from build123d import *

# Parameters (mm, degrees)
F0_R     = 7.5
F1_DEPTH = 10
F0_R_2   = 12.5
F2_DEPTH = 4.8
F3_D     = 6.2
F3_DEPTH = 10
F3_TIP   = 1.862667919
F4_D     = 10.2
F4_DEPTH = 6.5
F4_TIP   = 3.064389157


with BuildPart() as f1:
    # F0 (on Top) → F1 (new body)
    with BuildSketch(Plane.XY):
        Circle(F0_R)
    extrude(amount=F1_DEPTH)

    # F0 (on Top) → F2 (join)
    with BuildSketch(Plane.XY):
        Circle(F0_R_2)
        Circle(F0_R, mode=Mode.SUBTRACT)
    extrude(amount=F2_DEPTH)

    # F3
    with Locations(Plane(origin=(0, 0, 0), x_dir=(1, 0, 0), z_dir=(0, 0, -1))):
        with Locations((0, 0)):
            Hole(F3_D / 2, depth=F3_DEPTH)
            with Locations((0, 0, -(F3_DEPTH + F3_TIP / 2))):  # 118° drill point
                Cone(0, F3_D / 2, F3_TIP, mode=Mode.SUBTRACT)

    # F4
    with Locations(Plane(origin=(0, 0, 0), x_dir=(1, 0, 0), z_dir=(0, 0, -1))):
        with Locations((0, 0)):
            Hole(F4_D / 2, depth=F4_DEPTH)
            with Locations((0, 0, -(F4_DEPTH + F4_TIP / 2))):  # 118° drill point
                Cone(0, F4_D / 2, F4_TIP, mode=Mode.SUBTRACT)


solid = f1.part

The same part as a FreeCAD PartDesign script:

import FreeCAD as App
import Part
import Sketcher
from FreeCAD import Vector

doc = App.newDocument("Part")
body = doc.addObject("PartDesign::Body", "Body")

# Sketch on XY plane
sketch1 = body.newObject("Sketcher::SketchObject", "Sketch")
sketch1.AttachmentSupport = (doc.getObject("XY_Plane"), [""])
sketch1.MapMode = "FlatFace"
sketch1.addGeometry(Part.Circle(Vector(0, 0, 0), Vector(0, 0, 1), 8), False)
sketch1.addConstraint([
    Sketcher.Constraint("Coincident", 0, 3, -1, 1),
    Sketcher.Constraint("Diameter", 0, 15.0),
])
pad1 = body.newObject("PartDesign::Pad", "Pad")
pad1.Profile = sketch1
pad1.Length = 10

# Sketch on XY plane
sketch2 = body.newObject("Sketcher::SketchObject", "Sketch001")
sketch2.AttachmentSupport = (doc.getObject("XY_Plane"), [""])
sketch2.MapMode = "FlatFace"
sketch2.addGeometry([
    Part.Circle(Vector(0, 0, 0), Vector(0, 0, 1), 12),
    Part.Circle(Vector(0, 0, 0), Vector(0, 0, 1), 8),
], False)
sketch2.addConstraint([
    Sketcher.Constraint("Coincident", 0, 3, -1, 1),
    Sketcher.Constraint("Coincident", 1, 3, -1, 1),
    Sketcher.Constraint("Diameter", 0, 25.0),
    Sketcher.Constraint("Diameter", 1, 15.0),
])
pad2 = body.newObject("PartDesign::Pad", "Pad001")
pad2.Profile = sketch2
pad2.Length = 4.8

# Sketch on XY plane
sketch3 = body.newObject("Sketcher::SketchObject", "Sketch002")
sketch3.AttachmentSupport = (doc.getObject("XY_Plane"), [""])
sketch3.MapMode = "FlatFace"
sketch3.addGeometry(Part.Circle(Vector(0, 0, 0), Vector(0, 0, 1), 3.1), False)
sketch3.addConstraint([
    Sketcher.Constraint("Coincident", 0, 3, -1, 1),
    Sketcher.Constraint("Diameter", 0, 6.2),
])
doc.recompute()
hole = body.newObject("PartDesign::Hole", "Hole")
hole.Profile = sketch3
hole.ThreadType = "None"
hole.Diameter = 6.2
hole.DepthType = "Dimension"
hole.Depth = 10
hole.DrillPoint = "Angled"
hole.DrillPointAngle = 118
hole.Reversed = True

# Sketch on XY plane
sketch4 = body.newObject("Sketcher::SketchObject", "Sketch003")
sketch4.AttachmentSupport = (doc.getObject("XY_Plane"), [""])
sketch4.MapMode = "FlatFace"
sketch4.addGeometry(Part.Circle(Vector(0, 0, 0), Vector(0, 0, 1), 5), False)
sketch4.addConstraint([
    Sketcher.Constraint("Coincident", 0, 3, -1, 1),
    Sketcher.Constraint("Diameter", 0, 10.2),
])
doc.recompute()
hole2 = body.newObject("PartDesign::Hole", "Hole001")
hole2.Profile = sketch4
hole2.ThreadType = "None"
hole2.Diameter = 10.2
hole2.DepthType = "Dimension"
hole2.Depth = 6.5
hole2.DrillPoint = "Angled"
hole2.DrillPointAngle = 118
hole2.Reversed = True

doc.recompute()
